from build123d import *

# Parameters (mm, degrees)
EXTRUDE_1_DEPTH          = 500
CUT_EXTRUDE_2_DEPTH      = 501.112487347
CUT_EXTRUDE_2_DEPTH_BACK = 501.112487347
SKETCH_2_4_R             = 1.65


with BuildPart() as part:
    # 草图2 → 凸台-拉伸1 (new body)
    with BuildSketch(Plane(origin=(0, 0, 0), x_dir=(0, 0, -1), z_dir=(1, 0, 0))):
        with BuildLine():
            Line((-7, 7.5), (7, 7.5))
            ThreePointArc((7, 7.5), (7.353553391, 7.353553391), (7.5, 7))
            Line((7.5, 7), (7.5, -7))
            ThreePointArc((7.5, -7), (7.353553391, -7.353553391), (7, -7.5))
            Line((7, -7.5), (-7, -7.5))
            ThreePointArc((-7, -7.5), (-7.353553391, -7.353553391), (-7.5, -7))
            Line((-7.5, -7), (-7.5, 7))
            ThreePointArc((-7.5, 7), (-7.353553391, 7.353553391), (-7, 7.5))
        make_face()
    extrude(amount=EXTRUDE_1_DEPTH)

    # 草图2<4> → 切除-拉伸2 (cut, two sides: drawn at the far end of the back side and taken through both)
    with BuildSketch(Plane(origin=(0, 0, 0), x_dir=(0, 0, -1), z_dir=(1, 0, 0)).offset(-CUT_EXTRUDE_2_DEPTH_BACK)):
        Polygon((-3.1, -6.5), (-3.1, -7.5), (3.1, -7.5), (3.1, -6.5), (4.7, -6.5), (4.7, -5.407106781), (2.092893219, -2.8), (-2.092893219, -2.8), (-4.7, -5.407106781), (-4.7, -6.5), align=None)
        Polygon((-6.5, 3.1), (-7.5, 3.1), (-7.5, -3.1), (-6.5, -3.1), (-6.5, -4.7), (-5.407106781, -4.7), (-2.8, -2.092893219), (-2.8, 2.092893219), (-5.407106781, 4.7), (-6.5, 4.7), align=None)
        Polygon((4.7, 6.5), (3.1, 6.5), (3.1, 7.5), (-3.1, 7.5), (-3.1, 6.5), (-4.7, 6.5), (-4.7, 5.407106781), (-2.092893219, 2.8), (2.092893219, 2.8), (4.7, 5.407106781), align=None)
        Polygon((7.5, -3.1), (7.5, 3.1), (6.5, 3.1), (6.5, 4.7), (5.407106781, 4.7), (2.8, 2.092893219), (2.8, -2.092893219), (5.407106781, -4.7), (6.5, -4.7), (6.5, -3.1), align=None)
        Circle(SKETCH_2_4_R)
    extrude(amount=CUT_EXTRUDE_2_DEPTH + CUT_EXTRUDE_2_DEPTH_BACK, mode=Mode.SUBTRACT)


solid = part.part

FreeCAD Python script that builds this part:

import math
import FreeCAD as App
import Part
import Sketcher
Q = App.Units.Quantity


def add_polygon(sketch, points):
    """Adds a closed chain of lines whose ends are joined by coincident constraints."""
    first, n = sketch.GeometryCount, len(points)
    for a, b in zip(points, points[1:] + points[:1]):
        sketch.addGeometry(Part.LineSegment(App.Vector(*a, 0), App.Vector(*b, 0)), False)
    for i in range(n):
        sketch.addConstraint(Sketcher.Constraint("Coincident", first + i, 2, first + (i + 1) % n, 1))

doc = App.newDocument("Part")
params = doc.addObject("Spreadsheet::Sheet", "Params")
for row, (alias, value) in enumerate([
    ("sketch1_radius", "0.5 mm"),
    ("sketch1_width", "14 mm"),
    ("pad1_length", "500 mm"),
    ("sketch2_diameter", "3.3 mm"),
    ("sketch2_width", "1 mm"),
    ("sketch2_width2", "6.2 mm"),
    ("sketch2_width3", "1.6 mm"),
], start=1):
    params.set(f"A{row}", alias)
    params.set(f"B{row}", "=" + value)
    params.setAlias(f"B{row}", alias)

body = doc.addObject("PartDesign::Body", "Body")

sketch1 = body.newObject("Sketcher::SketchObject", "Sketch")
sketch1.AttachmentSupport = (doc.getObject("YZ_Plane"), [""])
sketch1.MapMode = "FlatFace"
sketch1.addGeometry([
    Part.LineSegment(App.Vector(7.5, -7, 0), App.Vector(7.5, 7, 0)),
    Part.ArcOfCircle(Part.Circle(App.Vector(7, 7, 0), App.Vector(0, 0, 1), 0.5), math.radians(0), math.radians(90)),
    Part.LineSegment(App.Vector(7, 7.5, 0), App.Vector(-7, 7.5, 0)),
    Part.ArcOfCircle(Part.Circle(App.Vector(-7, 7, 0), App.Vector(0, 0, 1), 0.5), math.radians(90), math.radians(180)),
    Part.LineSegment(App.Vector(-7.5, 7, 0), App.Vector(-7.5, -7, 0)),
    Part.ArcOfCircle(Part.Circle(App.Vector(-7, -7, 0), App.Vector(0, 0, 1), 0.5), math.radians(180), math.radians(270)),
    Part.LineSegment(App.Vector(-7, -7.5, 0), App.Vector(7, -7.5, 0)),
    Part.ArcOfCircle(Part.Circle(App.Vector(7, -7, 0), App.Vector(0, 0, 1), 0.5), math.radians(-90), math.radians(0)),
], False)
sketch1.addConstraint([
    Sketcher.Constraint("Tangent", 0, 2, 1, 1),
    Sketcher.Constraint("Tangent", 1, 2, 2, 1),
    Sketcher.Constraint("Tangent", 2, 2, 3, 1),
    Sketcher.Constraint("Tangent", 3, 2, 4, 1),
    Sketcher.Constraint("Tangent", 4, 2, 5, 1),
    Sketcher.Constraint("Tangent", 5, 2, 6, 1),
    Sketcher.Constraint("Tangent", 6, 2, 7, 1),
    Sketcher.Constraint("Tangent", 7, 2, 0, 1),
    Sketcher.Constraint("Vertical", 0),
    Sketcher.Constraint("Horizontal", 2),
    Sketcher.Constraint("Vertical", 4),
    Sketcher.Constraint("Horizontal", 6),
    Sketcher.Constraint("Equal", 1, 3),
    Sketcher.Constraint("Equal", 3, 5),
    Sketcher.Constraint("Equal", 5, 7),
    Sketcher.Constraint("Symmetric", 1, 3, 5, 3, -1, 1),
    Sketcher.Constraint("Equal", 6, 0),
    Sketcher.Constraint("Radius", 1, Q("0.5 mm")),
    Sketcher.Constraint("DistanceX", 2, 2, 2, 1, Q("14 mm")),
])
sketch1.setExpression("Constraints[17]", "Params.sketch1_radius")
sketch1.setExpression("Constraints[18]", "Params.sketch1_width")
pad1 = body.newObject("PartDesign::Pad", "Pad")
pad1.Profile = sketch1
pad1.setExpression("Length", "Params.pad1_length")

sketch2 = body.newObject("Sketcher::SketchObject", "Sketch001")
sketch2.AttachmentSupport = (doc.getObject("YZ_Plane"), [""])
sketch2.MapMode = "FlatFace"
add_polygon(sketch2, [(-6.5, 3.1), (-7.5, 3.1), (-7.5, -3.1), (-6.5, -3.1), (-6.5, -4.7), (-5.407107, -4.7), (-2.8, -2.092893), (-2.8, 2.092893), (-5.407107, 4.7), (-6.5, 4.7)])
add_polygon(sketch2, [(3.1, 6.5), (3.1, 7.5), (-3.1, 7.5), (-3.1, 6.5), (-4.7, 6.5), (-4.7, 5.407107), (-2.092893, 2.8), (2.092893, 2.8), (4.7, 5.407107), (4.7, 6.5)])
add_polygon(sketch2, [(6.5, -4.7), (6.5, -3.1), (7.5, -3.1), (7.5, 3.1), (6.5, 3.1), (6.5, 4.7), (5.407107, 4.7), (2.8, 2.092893), (2.8, -2.092893), (5.407107, -4.7)])
add_polygon(sketch2, [(-3.1, -7.5), (3.1, -7.5), (3.1, -6.5), (4.7, -6.5), (4.7, -5.407107), (2.092893, -2.8), (-2.092893, -2.8), (-4.7, -5.407107), (-4.7, -6.5), (-3.1, -6.5)])
sketch2.addGeometry(Part.Circle(App.Vector(0, 0, 0), App.Vector(0, 0, 1), 1.65), False)
sketch2.addConstraint([
    Sketcher.Constraint("Horizontal", 0),
    Sketcher.Constraint("Vertical", 1),
    Sketcher.Constraint("Horizontal", 2),
    Sketcher.Constraint("Vertical", 3),
    Sketcher.Constraint("Horizontal", 4),
    Sketcher.Constraint("Vertical", 6),
    Sketcher.Constraint("Horizontal", 8),
    Sketcher.Constraint("Vertical", 9),
    Sketcher.Constraint("Vertical", 10),
    Sketcher.Constraint("Horizontal", 11),
    Sketcher.Constraint("Vertical", 12),
    Sketcher.Constraint("Horizontal", 13),
    Sketcher.Constraint("Vertical", 14),
    Sketcher.Constraint("Horizontal", 16),
    Sketcher.Constraint("Vertical", 18),
    Sketcher.Constraint("Horizontal", 19),
    Sketcher.Constraint("Vertical", 20),
    Sketcher.Constraint("Horizontal", 21),
    Sketcher.Constraint("Vertical", 22),
    Sketcher.Constraint("Horizontal", 23),
    Sketcher.Constraint("Vertical", 24),
    Sketcher.Constraint("Horizontal", 25),
    Sketcher.Constraint("Vertical", 27),
    Sketcher.Constraint("Horizontal", 29),
    Sketcher.Constraint("Horizontal", 30),
    Sketcher.Constraint("Vertical", 31),
    Sketcher.Constraint("Horizontal", 32),
    Sketcher.Constraint("Vertical", 33),
    Sketcher.Constraint("Horizontal", 35),
    Sketcher.Constraint("Vertical", 37),
    Sketcher.Constraint("Horizontal", 38),
    Sketcher.Constraint("Vertical", 39),
    Sketcher.Constraint("Coincident", 40, 3, -1, 1),
    Sketcher.Constraint("Symmetric", 9, 2, 20, 2, -1, 1),
    Sketcher.Constraint("Symmetric", 1, 2, 22, 2, -1, 1),
    Sketcher.Constraint("Symmetric", 3, 2, 24, 2, -1, 1),
    Sketcher.Constraint("Symmetric", 5, 2, 26, 2, -1, 1),
    Sketcher.Constraint("Symmetric", 7, 2, 28, 2, -1, 1),
    Sketcher.Constraint("Symmetric", 11, 2, 30, 2, -1, 1),
    Sketcher.Constraint("Symmetric", 13, 2, 32, 2, -1, 1),
    Sketcher.Constraint("Symmetric", 15, 2, 34, 2, -1, 1),
    Sketcher.Constraint("Symmetric", 17, 2, 36, 2, -1, 1),
    Sketcher.Constraint("Symmetric", 19, 2, 38, 2, -1, 1),
    Sketcher.Constraint("Symmetric", 14, 2, 17, 2, -2),
    Sketcher.Constraint("Symmetric", 12, 2, 19, 2, -2),
    Sketcher.Constraint("Symmetric", 2, 2, 20, 2, -2),
    Sketcher.Constraint("Symmetric", 7, 2, 25, 2, -2),
    Sketcher.Constraint("Perpendicular", 5, 7),
    Sketcher.Constraint("Parallel", 7, 15),
    Sketcher.Constraint("Perpendicular", 15, 17),
    Sketcher.Constraint("Parallel", 17, 26),
    Sketcher.Constraint("Perpendicular", 26, 28),
    Sketcher.Constraint("Parallel", 28, 34),
    Sketcher.Constraint("Perpendicular", 34, 36),
    Sketcher.Constraint("Horizontal", 6, 2, 26, 2),
    Sketcher.Constraint("Equal", 30, 1),
    Sketcher.Constraint("Equal", 38, 3),
    Sketcher.Constraint("Equal", 35, 6),
    Sketcher.Constraint("Equal", 23, 10),
    Sketcher.Constraint("Equal", 29, 14),
    Sketcher.Constraint("Diameter", 40, Q("3.3 mm")),
    Sketcher.Constraint("DistanceX", 0, 2, 0, 1, Q("1 mm")),
    Sketcher.Constraint("DistanceX", 11, 2, 11, 1, Q("6.2 mm")),
    Sketcher.Constraint("DistanceX", 13, 2, 13, 1, Q("1.6 mm")),
    Sketcher.Constraint("DistanceX", 0, 2, -1, 1, Q("7.5 mm")),
    Sketcher.Constraint("DistanceX", 5, 2, -1, 1, Q("2.8 mm")),
    Sketcher.Constraint("DistanceY", -1, 1, 10, 2, Q("7.5 mm")),
    Sketcher.Constraint("DistanceX", 4, 1, 4, 2, Q("1.092893 mm")),
])
sketch2.setExpression("Constraints[100]", "Params.sketch2_diameter")
sketch2.setExpression("Constraints[101]", "Params.sketch2_width")
sketch2.setExpression("Constraints[102]", "Params.sketch2_width2")
sketch2.setExpression("Constraints[103]", "Params.sketch2_width3")
pocket1 = body.newObject("PartDesign::Pocket", "Pocket")
pocket1.Profile = sketch2
pocket1.Type = "ThroughAll"
pocket1.Midplane = True

doc.recompute()
